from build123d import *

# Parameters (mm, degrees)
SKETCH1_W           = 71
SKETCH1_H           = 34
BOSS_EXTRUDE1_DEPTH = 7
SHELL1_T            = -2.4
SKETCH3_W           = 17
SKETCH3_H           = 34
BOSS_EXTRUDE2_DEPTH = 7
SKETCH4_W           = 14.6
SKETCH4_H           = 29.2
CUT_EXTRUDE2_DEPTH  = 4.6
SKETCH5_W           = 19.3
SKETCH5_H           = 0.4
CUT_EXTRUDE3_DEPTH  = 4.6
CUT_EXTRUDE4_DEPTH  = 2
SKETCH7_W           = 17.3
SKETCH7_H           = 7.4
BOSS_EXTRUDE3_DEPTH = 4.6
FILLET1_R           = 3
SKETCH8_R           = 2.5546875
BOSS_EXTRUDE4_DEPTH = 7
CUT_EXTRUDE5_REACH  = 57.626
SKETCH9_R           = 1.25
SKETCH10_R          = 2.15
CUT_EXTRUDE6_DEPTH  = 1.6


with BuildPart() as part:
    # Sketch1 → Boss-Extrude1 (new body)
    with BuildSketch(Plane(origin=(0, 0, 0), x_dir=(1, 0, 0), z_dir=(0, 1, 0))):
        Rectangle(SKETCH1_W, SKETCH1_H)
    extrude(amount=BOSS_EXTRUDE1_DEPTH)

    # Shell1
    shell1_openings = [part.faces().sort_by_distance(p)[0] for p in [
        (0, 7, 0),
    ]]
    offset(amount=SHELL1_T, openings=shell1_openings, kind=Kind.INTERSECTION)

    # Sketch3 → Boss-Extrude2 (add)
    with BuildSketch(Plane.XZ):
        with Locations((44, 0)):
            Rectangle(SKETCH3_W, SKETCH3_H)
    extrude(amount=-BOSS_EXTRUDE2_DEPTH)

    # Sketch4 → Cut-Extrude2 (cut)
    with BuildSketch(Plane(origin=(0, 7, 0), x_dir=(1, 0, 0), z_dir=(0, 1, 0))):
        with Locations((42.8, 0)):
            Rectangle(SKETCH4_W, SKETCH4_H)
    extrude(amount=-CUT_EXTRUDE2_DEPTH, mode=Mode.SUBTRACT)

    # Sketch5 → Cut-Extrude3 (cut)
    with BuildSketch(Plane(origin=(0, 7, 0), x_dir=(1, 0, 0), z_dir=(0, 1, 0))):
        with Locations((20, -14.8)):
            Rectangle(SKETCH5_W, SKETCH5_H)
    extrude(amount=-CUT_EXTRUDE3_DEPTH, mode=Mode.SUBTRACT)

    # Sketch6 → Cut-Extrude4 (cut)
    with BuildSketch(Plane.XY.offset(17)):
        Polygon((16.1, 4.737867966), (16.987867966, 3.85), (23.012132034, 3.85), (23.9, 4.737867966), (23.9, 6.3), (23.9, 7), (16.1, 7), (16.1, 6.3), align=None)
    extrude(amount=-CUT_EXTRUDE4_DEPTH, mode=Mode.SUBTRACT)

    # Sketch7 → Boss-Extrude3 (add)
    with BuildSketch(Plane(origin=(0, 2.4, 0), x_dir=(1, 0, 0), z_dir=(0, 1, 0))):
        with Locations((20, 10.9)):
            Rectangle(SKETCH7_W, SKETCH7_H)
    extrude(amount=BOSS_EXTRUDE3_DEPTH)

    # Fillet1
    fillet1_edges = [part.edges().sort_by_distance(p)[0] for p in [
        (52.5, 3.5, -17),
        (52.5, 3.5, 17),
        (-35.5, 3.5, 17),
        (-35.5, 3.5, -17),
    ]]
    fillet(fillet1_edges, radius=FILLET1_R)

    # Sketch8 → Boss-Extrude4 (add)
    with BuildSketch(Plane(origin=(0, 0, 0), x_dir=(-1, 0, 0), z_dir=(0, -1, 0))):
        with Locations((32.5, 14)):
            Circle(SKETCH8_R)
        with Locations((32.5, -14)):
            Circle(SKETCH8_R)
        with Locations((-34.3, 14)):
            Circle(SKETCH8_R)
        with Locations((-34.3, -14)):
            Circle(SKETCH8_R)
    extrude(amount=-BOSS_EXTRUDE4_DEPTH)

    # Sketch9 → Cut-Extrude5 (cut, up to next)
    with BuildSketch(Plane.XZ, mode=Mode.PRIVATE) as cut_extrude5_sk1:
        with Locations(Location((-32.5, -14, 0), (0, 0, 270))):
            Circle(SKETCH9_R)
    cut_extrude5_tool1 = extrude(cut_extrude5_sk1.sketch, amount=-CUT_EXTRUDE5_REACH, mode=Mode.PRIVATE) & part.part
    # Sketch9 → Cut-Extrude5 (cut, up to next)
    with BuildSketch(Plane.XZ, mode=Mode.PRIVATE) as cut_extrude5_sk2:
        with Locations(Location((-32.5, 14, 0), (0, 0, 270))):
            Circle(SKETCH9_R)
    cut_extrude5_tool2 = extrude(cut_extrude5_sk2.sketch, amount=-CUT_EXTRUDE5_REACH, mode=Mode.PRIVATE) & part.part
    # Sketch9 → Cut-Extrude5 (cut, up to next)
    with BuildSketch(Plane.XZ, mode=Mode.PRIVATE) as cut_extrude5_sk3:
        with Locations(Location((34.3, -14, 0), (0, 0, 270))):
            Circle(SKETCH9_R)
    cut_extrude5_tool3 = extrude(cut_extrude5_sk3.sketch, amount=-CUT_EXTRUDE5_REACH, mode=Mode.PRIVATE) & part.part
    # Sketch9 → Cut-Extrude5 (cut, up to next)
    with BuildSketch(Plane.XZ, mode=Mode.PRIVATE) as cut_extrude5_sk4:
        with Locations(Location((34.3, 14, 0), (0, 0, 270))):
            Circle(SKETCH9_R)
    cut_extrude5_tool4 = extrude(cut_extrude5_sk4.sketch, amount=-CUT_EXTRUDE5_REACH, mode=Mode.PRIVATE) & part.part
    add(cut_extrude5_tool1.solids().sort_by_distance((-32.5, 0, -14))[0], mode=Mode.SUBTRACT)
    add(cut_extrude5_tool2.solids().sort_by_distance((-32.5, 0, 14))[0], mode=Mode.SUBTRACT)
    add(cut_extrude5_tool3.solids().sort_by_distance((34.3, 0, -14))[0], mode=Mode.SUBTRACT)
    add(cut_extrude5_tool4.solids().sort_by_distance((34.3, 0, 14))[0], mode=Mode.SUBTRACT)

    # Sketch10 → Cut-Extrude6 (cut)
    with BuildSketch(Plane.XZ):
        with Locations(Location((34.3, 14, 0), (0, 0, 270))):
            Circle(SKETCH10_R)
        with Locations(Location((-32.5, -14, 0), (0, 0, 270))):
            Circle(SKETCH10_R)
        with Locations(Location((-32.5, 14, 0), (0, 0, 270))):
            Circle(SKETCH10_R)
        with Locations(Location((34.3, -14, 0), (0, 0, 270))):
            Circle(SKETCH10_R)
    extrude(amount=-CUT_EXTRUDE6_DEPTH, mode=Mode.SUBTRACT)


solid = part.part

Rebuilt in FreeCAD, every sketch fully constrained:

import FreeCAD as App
import Part
import Sketcher


def edges_at(feature, points):
    """Names of the edges that pass closest to the given points."""
    edges = feature.Shape.Edges
    near = lambda p: min(range(len(edges)), key=lambda i: edges[i].distToShape(Part.Vertex(*p))[0])
    return sorted({f"Edge{near(p) + 1}" for p in points})


def faces_at(feature, points):
    """Names of the faces that lie closest to the given points."""
    faces = feature.Shape.Faces
    near = lambda p: min(range(len(faces)), key=lambda i: faces[i].distToShape(Part.Vertex(*p))[0])
    return sorted({f"Face{near(p) + 1}" for p in points})

doc = App.newDocument("Part")
body = doc.addObject("PartDesign::Body", "Body")

# Sketch on XZ plane
sketch1 = doc.addObject("Sketcher::SketchObject", "Sketch")
body.addObject(sketch1)
sketch1.AttachmentSupport = (doc.XZ_Plane, [""])
sketch1.MapMode = "FlatFace"
sketch1.addGeometry(Part.LineSegment(App.Vector(-36, -17, 0), App.Vector(-36, 17, 0)), False)
sketch1.addGeometry(Part.LineSegment(App.Vector(-36, 17, 0), App.Vector(36, 17, 0)), False)
sketch1.addGeometry(Part.LineSegment(App.Vector(36, 17, 0), App.Vector(36, -17, 0)), False)
sketch1.addGeometry(Part.LineSegment(App.Vector(36, -17, 0), App.Vector(-36, -17, 0)), False)
sketch1.addConstraint(Sketcher.Constraint("Coincident", 0, 2, 1, 1))
sketch1.addConstraint(Sketcher.Constraint("Coincident", 1, 2, 2, 1))
sketch1.addConstraint(Sketcher.Constraint("Coincident", 2, 2, 3, 1))
sketch1.addConstraint(Sketcher.Constraint("Coincident", 3, 2, 0, 1))
sketch1.addConstraint(Sketcher.Constraint("Vertical", 0))
sketch1.addConstraint(Sketcher.Constraint("Horizontal", 1))
sketch1.addConstraint(Sketcher.Constraint("Vertical", 2))
sketch1.addConstraint(Sketcher.Constraint("Horizontal", 3))
sketch1.addConstraint(Sketcher.Constraint("Symmetric", 0, 2, 2, 2, -1, 1))
sketch1.addConstraint(Sketcher.Constraint("DistanceX", 1, 1, 1, 2, 71.0))
sketch1.addConstraint(Sketcher.Constraint("DistanceY", 0, 1, 0, 2, 34.0))
pad1 = doc.addObject("PartDesign::Pad", "Pad")
body.addObject(pad1)
pad1.Profile = sketch1
pad1.Length = 7
pad1.Reversed = True
doc.recompute()

thickness = doc.addObject("PartDesign::Thickness", "Thickness")
body.addObject(thickness)
thickness.Base = (pad1, faces_at(pad1, [(0, 7, 0)]))
thickness.Value = 2.4
thickness.Reversed = True
thickness.Join = "Intersection"

# Sketch on XZ plane
sketch2 = doc.addObject("Sketcher::SketchObject", "Sketch001")
body.addObject(sketch2)
sketch2.AttachmentSupport = (doc.XZ_Plane, [""])
sketch2.MapMode = "FlatFace"
sketch2.addGeometry(Part.LineSegment(App.Vector(36, 17, 0), App.Vector(36, -17, 0)), False)
sketch2.addGeometry(Part.LineSegment(App.Vector(36, -17, 0), App.Vector(52, -17, 0)), False)
sketch2.addGeometry(Part.LineSegment(App.Vector(52, -17, 0), App.Vector(52, 17, 0)), False)
sketch2.addGeometry(Part.LineSegment(App.Vector(52, 17, 0), App.Vector(36, 17, 0)), False)
sketch2.addConstraint(Sketcher.Constraint("Coincident", 0, 2, 1, 1))
sketch2.addConstraint(Sketcher.Constraint("Coincident", 1, 2, 2, 1))
sketch2.addConstraint(Sketcher.Constraint("Coincident", 2, 2, 3, 1))
sketch2.addConstraint(Sketcher.Constraint("Coincident", 3, 2, 0, 1))
sketch2.addConstraint(Sketcher.Constraint("Vertical", 0))
sketch2.addConstraint(Sketcher.Constraint("Horizontal", 1))
sketch2.addConstraint(Sketcher.Constraint("Vertical", 2))
sketch2.addConstraint(Sketcher.Constraint("Horizontal", 3))
sketch2.addConstraint(Sketcher.Constraint("DistanceX", 1, 1, 1, 2, 17.0))
sketch2.addConstraint(Sketcher.Constraint("DistanceY", 0, 2, 0, 1, 34.0))
sketch2.addConstraint(Sketcher.Constraint("DistanceY", 0, 2, -1, 1, 17.0))
sketch2.addConstraint(Sketcher.Constraint("DistanceX", -1, 1, 0, 2, 35.5))
pad2 = doc.addObject("PartDesign::Pad", "Pad001")
body.addObject(pad2)
pad2.Profile = sketch2
pad2.Length = 7
pad2.Reversed = True

# Sketch on XZ plane
sketch3 = doc.addObject("Sketcher::SketchObject", "Sketch002")
body.addObject(sketch3)
sketch3.AttachmentSupport = (doc.XZ_Plane, [""])
sketch3.MapMode = "FlatFace"
sketch3.AttachmentOffset = App.Placement(App.Vector(0, 0, -7), App.Rotation())
sketch3.addGeometry(Part.LineSegment(App.Vector(36, -15, 0), App.Vector(36, 15, 0)), False)
sketch3.addGeometry(Part.LineSegment(App.Vector(36, 15, 0), App.Vector(50, 15, 0)), False)
sketch3.addGeometry(Part.LineSegment(App.Vector(50, 15, 0), App.Vector(50, -15, 0)), False)
sketch3.addGeometry(Part.LineSegment(App.Vector(50, -15, 0), App.Vector(36, -15, 0)), False)
sketch3.addConstraint(Sketcher.Constraint("Coincident", 0, 2, 1, 1))
sketch3.addConstraint(Sketcher.Constraint("Coincident", 1, 2, 2, 1))
sketch3.addConstraint(Sketcher.Constraint("Coincident", 2, 2, 3, 1))
sketch3.addConstraint(Sketcher.Constraint("Coincident", 3, 2, 0, 1))
sketch3.addConstraint(Sketcher.Constraint("Vertical", 0))
sketch3.addConstraint(Sketcher.Constraint("Horizontal", 1))
sketch3.addConstraint(Sketcher.Constraint("Vertical", 2))
sketch3.addConstraint(Sketcher.Constraint("Horizontal", 3))
sketch3.addConstraint(Sketcher.Constraint("DistanceX", 1, 1, 1, 2, 14.6))
sketch3.addConstraint(Sketcher.Constraint("DistanceY", 0, 1, 0, 2, 29.2))
sketch3.addConstraint(Sketcher.Constraint("DistanceX", -1, 1, 0, 2, 35.5))
sketch3.addConstraint(Sketcher.Constraint("DistanceY", -1, 1, 0, 2, 14.6))
pocket1 = doc.addObject("PartDesign::Pocket", "Pocket")
body.addObject(pocket1)
pocket1.Profile = sketch3
pocket1.Length = 4.6
pocket1.Reversed = True

# Sketch on XZ plane
sketch4 = doc.addObject("Sketcher::SketchObject", "Sketch003")
body.addObject(sketch4)
sketch4.AttachmentSupport = (doc.XZ_Plane, [""])
sketch4.MapMode = "FlatFace"
sketch4.AttachmentOffset = App.Placement(App.Vector(0, 0, -7), App.Rotation())
sketch4.addGeometry(Part.LineSegment(App.Vector(10.35, 14.6, 0), App.Vector(10.35, 15, 0)), False)
sketch4.addGeometry(Part.LineSegment(App.Vector(10.35, 15, 0), App.Vector(29.65, 15, 0)), False)
sketch4.addGeometry(Part.LineSegment(App.Vector(29.65, 15, 0), App.Vector(29.65, 14.6, 0)), False)
sketch4.addGeometry(Part.LineSegment(App.Vector(29.65, 14.6, 0), App.Vector(10.35, 14.6, 0)), False)
sketch4.addConstraint(Sketcher.Constraint("Coincident", 0, 2, 1, 1))
sketch4.addConstraint(Sketcher.Constraint("Coincident", 1, 2, 2, 1))
sketch4.addConstraint(Sketcher.Constraint("Coincident", 2, 2, 3, 1))
sketch4.addConstraint(Sketcher.Constraint("Coincident", 3, 2, 0, 1))
sketch4.addConstraint(Sketcher.Constraint("Vertical", 0))
sketch4.addConstraint(Sketcher.Constraint("Horizontal", 1))
sketch4.addConstraint(Sketcher.Constraint("Vertical", 2))
sketch4.addConstraint(Sketcher.Constraint("Horizontal", 3))
sketch4.addConstraint(Sketcher.Constraint("DistanceX", 1, 1, 1, 2, 19.3))
sketch4.addConstraint(Sketcher.Constraint("DistanceY", 0, 1, 0, 2, 0.4))
sketch4.addConstraint(Sketcher.Constraint("DistanceY", -1, 1, 0, 2, 15.0))
sketch4.addConstraint(Sketcher.Constraint("DistanceX", -1, 1, 0, 2, 10.35))
pocket2 = doc.addObject("PartDesign::Pocket", "Pocket001")
body.addObject(pocket2)
pocket2.Profile = sketch4
pocket2.Length = 4.6
pocket2.Reversed = True

# Sketch on XY plane
sketch5 = doc.addObject("Sketcher::SketchObject", "Sketch004")
body.addObject(sketch5)
sketch5.AttachmentSupport = (doc.XY_Plane, [""])
sketch5.MapMode = "FlatFace"
sketch5.AttachmentOffset = App.Placement(App.Vector(0, 0, 17), App.Rotation())
sketch5.addGeometry(Part.LineSegment(App.Vector(16.1, 4.7, 0), App.Vector(17, 3.9, 0)), False)
sketch5.addGeometry(Part.LineSegment(App.Vector(17, 3.9, 0), App.Vector(23, 3.9, 0)), False)
sketch5.addGeometry(Part.LineSegment(App.Vector(23, 3.9, 0), App.Vector(23.9, 4.7, 0)), False)
sketch5.addGeometry(Part.LineSegment(App.Vector(23.9, 4.7, 0), App.Vector(23.9, 7, 0)), False)
sketch5.addGeometry(Part.LineSegment(App.Vector(23.9, 7, 0), App.Vector(16.1, 7, 0)), False)
sketch5.addGeometry(Part.LineSegment(App.Vector(16.1, 7, 0), App.Vector(16.1, 4.7, 0)), False)
sketch5.addConstraint(Sketcher.Constraint("Coincident", 0, 2, 1, 1))
sketch5.addConstraint(Sketcher.Constraint("Coincident", 1, 2, 2, 1))
sketch5.addConstraint(Sketcher.Constraint("Coincident", 2, 2, 3, 1))
sketch5.addConstraint(Sketcher.Constraint("Coincident", 3, 2, 4, 1))
sketch5.addConstraint(Sketcher.Constraint("Coincident", 4, 2, 5, 1))
sketch5.addConstraint(Sketcher.Constraint("Coincident", 5, 2, 0, 1))
sketch5.addConstraint(Sketcher.Constraint("Horizontal", 1))
sketch5.addConstraint(Sketcher.Constraint("Vertical", 3))
sketch5.addConstraint(Sketcher.Constraint("Horizontal", 4))
sketch5.addConstraint(Sketcher.Constraint("Vertical", 5))
sketch5.addConstraint(Sketcher.Constraint("Perpendicular", 0, 2))
sketch5.addConstraint(Sketcher.Constraint("Horizontal", 2, 2, 5, 2))
sketch5.addConstraint(Sketcher.Constraint("Equal", 0, 2))
sketch5.addConstraint(Sketcher.Constraint("DistanceX", 4, 2, 4, 1, 7.8))
sketch5.addConstraint(Sketcher.Constraint("DistanceY", -1, 1, 3, 2, 7.0))
sketch5.addConstraint(Sketcher.Constraint("DistanceX", -1, 1, 2, 2, 23.9))
sketch5.addConstraint(Sketcher.Constraint("DistanceY", -1, 1, 0, 2, 3.85))
sketch5.addConstraint(Sketcher.Constraint("DistanceX", 1, 1, 1, 2, 6.024264))
pocket3 = doc.addObject("PartDesign::Pocket", "Pocket002")
body.addObject(pocket3)
pocket3.Profile = sketch5
pocket3.Length = 2

# Sketch on XZ plane
sketch6 = doc.addObject("Sketcher::SketchObject", "Sketch005")
body.addObject(sketch6)
sketch6.AttachmentSupport = (doc.XZ_Plane, [""])
sketch6.MapMode = "FlatFace"
sketch6.AttachmentOffset = App.Placement(App.Vector(0, 0, -2.4), App.Rotation())
sketch6.addGeometry(Part.LineSegment(App.Vector(11, -15, 0), App.Vector(11, -7, 0)), False)
sketch6.addGeometry(Part.LineSegment(App.Vector(11, -7, 0), App.Vector(29, -7, 0)), False)
sketch6.addGeometry(Part.LineSegment(App.Vector(29, -7, 0), App.Vector(29, -15, 0)), False)
sketch6.addGeometry(Part.LineSegment(App.Vector(29, -15, 0), App.Vector(11, -15, 0)), False)
sketch6.addConstraint(Sketcher.Constraint("Coincident", 0, 2, 1, 1))
sketch6.addConstraint(Sketcher.Constraint("Coincident", 1, 2, 2, 1))
sketch6.addConstraint(Sketcher.Constraint("Coincident", 2, 2, 3, 1))
sketch6.addConstraint(Sketcher.Constraint("Coincident", 3, 2, 0, 1))
sketch6.addConstraint(Sketcher.Constraint("Vertical", 0))
sketch6.addConstraint(Sketcher.Constraint("Horizontal", 1))
sketch6.addConstraint(Sketcher.Constraint("Vertical", 2))
sketch6.addConstraint(Sketcher.Constraint("Horizontal", 3))
sketch6.addConstraint(Sketcher.Constraint("DistanceX", 1, 1, 1, 2, 17.3))
sketch6.addConstraint(Sketcher.Constraint("DistanceY", 0, 1, 0, 2, 7.4))
sketch6.addConstraint(Sketcher.Constraint("DistanceY", 0, 2, -1, 1, 7.2))
sketch6.addConstraint(Sketcher.Constraint("DistanceX", -1, 1, 0, 2, 11.35))
pad3 = doc.addObject("PartDesign::Pad", "Pad002")
body.addObject(pad3)
pad3.Profile = sketch6
pad3.Length = 4.6
pad3.Reversed = True
doc.recompute()

fillet = doc.addObject("PartDesign::Fillet", "Fillet")
body.addObject(fillet)
fillet.Base = (pad3, edges_at(pad3, [
    (52.5, 3.5, -17),
    (52.5, 3.5, 17),
    (-35.5, 3.5, 17),
    (-35.5, 3.5, -17),
]))
fillet.Radius = 3

# Sketch on XZ plane
sketch7 = doc.addObject("Sketcher::SketchObject", "Sketch006")
body.addObject(sketch7)
sketch7.AttachmentSupport = (doc.XZ_Plane, [""])
sketch7.MapMode = "FlatFace"
sketch7.addGeometry(Part.Circle(App.Vector(-32.5, -14, 0), App.Vector(0, 0, 1), 2.6), False)
sketch7.addGeometry(Part.Circle(App.Vector(-32.5, 14, 0), App.Vector(0, 0, 1), 2.6), False)
sketch7.addGeometry(Part.Circle(App.Vector(34.3, -14, 0), App.Vector(0, 0, 1), 2.6), False)
sketch7.addGeometry(Part.Circle(App.Vector(34.3, 14, 0), App.Vector(0, 0, 1), 2.6), False)
sketch7.addConstraint(Sketcher.Constraint("Equal", 0, 1))
sketch7.addConstraint(Sketcher.Constraint("Equal", 1, 2))
sketch7.addConstraint(Sketcher.Constraint("Equal", 2, 3))
sketch7.addConstraint(Sketcher.Constraint("Symmetric", 0, 3, 1, 3, -1))
sketch7.addConstraint(Sketcher.Constraint("Symmetric", 2, 3, 3, 3, -1))
sketch7.addConstraint(Sketcher.Constraint("Horizontal", 0, 3, 2, 3))
sketch7.addConstraint(Sketcher.Constraint("DistanceY", 0, 3, -1, 1, 14.0))
sketch7.addConstraint(Sketcher.Constraint("DistanceX", 0, 3, -1, 1, 32.5))
sketch7.addConstraint(Sketcher.Constraint("DistanceX", -1, 1, 2, 3, 34.3))
sketch7.addConstraint(Sketcher.Constraint("Diameter", 0, 5.109375))
pad4 = doc.addObject("PartDesign::Pad", "Pad003")
body.addObject(pad4)
pad4.Profile = sketch7
pad4.Length = 7
pad4.Reversed = True

# Sketch on XZ plane
sketch8 = doc.addObject("Sketcher::SketchObject", "Sketch007")
body.addObject(sketch8)
sketch8.AttachmentSupport = (doc.XZ_Plane, [""])
sketch8.MapMode = "FlatFace"
sketch8.addGeometry(Part.Circle(App.Vector(-32.5, -14, 0), App.Vector(0, 0, 1), 1.2), False)
sketch8.addConstraint(Sketcher.Constraint("Diameter", 0, 2.5))
sketch8.addConstraint(Sketcher.Constraint("DistanceY", 0, 3, -1, 1, 14.0))
sketch8.addConstraint(Sketcher.Constraint("DistanceX", 0, 3, -1, 1, 32.5))
pocket4 = doc.addObject("PartDesign::Pocket", "Pocket003")
body.addObject(pocket4)
pocket4.Profile = sketch8
pocket4.Type = "UpToFirst"

# Sketch on XZ plane
sketch9 = doc.addObject("Sketcher::SketchObject", "Sketch008")
body.addObject(sketch9)
sketch9.AttachmentSupport = (doc.XZ_Plane, [""])
sketch9.MapMode = "FlatFace"
sketch9.addGeometry(Part.Circle(App.Vector(-32.5, 14, 0), App.Vector(0, 0, 1), 1.2), False)
sketch9.addConstraint(Sketcher.Constraint("Diameter", 0, 2.5))
sketch9.addConstraint(Sketcher.Constraint("DistanceY", -1, 1, 0, 3, 14.0))
sketch9.addConstraint(Sketcher.Constraint("DistanceX", 0, 3, -1, 1, 32.5))
pocket5 = doc.addObject("PartDesign::Pocket", "Pocket004")
body.addObject(pocket5)
pocket5.Profile = sketch9
pocket5.Type = "UpToFirst"

# Sketch on XZ plane
sketch10 = doc.addObject("Sketcher::SketchObject", "Sketch009")
body.addObject(sketch10)
sketch10.AttachmentSupport = (doc.XZ_Plane, [""])
sketch10.MapMode = "FlatFace"
sketch10.addGeometry(Part.Circle(App.Vector(34.3, -14, 0), App.Vector(0, 0, 1), 1.2), False)
sketch10.addConstraint(Sketcher.Constraint("Diameter", 0, 2.5))
sketch10.addConstraint(Sketcher.Constraint("DistanceY", 0, 3, -1, 1, 14.0))
sketch10.addConstraint(Sketcher.Constraint("DistanceX", -1, 1, 0, 3, 34.3))
pocket6 = doc.addObject("PartDesign::Pocket", "Pocket005")
body.addObject(pocket6)
pocket6.Profile = sketch10
pocket6.Type = "UpToFirst"

# Sketch on XZ plane
sketch11 = doc.addObject("Sketcher::SketchObject", "Sketch010")
body.addObject(sketch11)
sketch11.AttachmentSupport = (doc.XZ_Plane, [""])
sketch11.MapMode = "FlatFace"
sketch11.addGeometry(Part.Circle(App.Vector(34.3, 14, 0), App.Vector(0, 0, 1), 1.2), False)
sketch11.addConstraint(Sketcher.Constraint("Diameter", 0, 2.5))
sketch11.addConstraint(Sketcher.Constraint("DistanceY", -1, 1, 0, 3, 14.0))
sketch11.addConstraint(Sketcher.Constraint("DistanceX", -1, 1, 0, 3, 34.3))
pocket7 = doc.addObject("PartDesign::Pocket", "Pocket006")
body.addObject(pocket7)
pocket7.Profile = sketch11
pocket7.Type = "UpToFirst"

# Sketch on XZ plane
sketch12 = doc.addObject("Sketcher::SketchObject", "Sketch011")
body.addObject(sketch12)
sketch12.AttachmentSupport = (doc.XZ_Plane, [""])
sketch12.MapMode = "FlatFace"
sketch12.addGeometry(Part.Circle(App.Vector(34.3, 14, 0), App.Vector(0, 0, 1), 2.1), False)
sketch12.addGeometry(Part.Circle(App.Vector(-32.5, -14, 0), App.Vector(0, 0, 1), 2.1), False)
sketch12.addGeometry(Part.Circle(App.Vector(-32.5, 14, 0), App.Vector(0, 0, 1), 2.1), False)
sketch12.addGeometry(Part.Circle(App.Vector(34.3, -14, 0), App.Vector(0, 0, 1), 2.1), False)
sketch12.addConstraint(Sketcher.Constraint("Equal", 0, 1))
sketch12.addConstraint(Sketcher.Constraint("Equal", 1, 2))
sketch12.addConstraint(Sketcher.Constraint("Equal", 2, 3))
sketch12.addConstraint(Sketcher.Constraint("Symmetric", 1, 3, 2, 3, -1))
sketch12.addConstraint(Sketcher.Constraint("Symmetric", 0, 3, 3, 3, -1))
sketch12.addConstraint(Sketcher.Constraint("Horizontal", 0, 3, 2, 3))
sketch12.addConstraint(Sketcher.Constraint("Diameter", 0, 4.3))
sketch12.addConstraint(Sketcher.Constraint("DistanceY", -1, 1, 0, 3, 14.0))
sketch12.addConstraint(Sketcher.Constraint("DistanceX", -1, 1, 0, 3, 34.3))
sketch12.addConstraint(Sketcher.Constraint("DistanceX", 1, 3, -1, 1, 32.5))
pocket8 = doc.addObject("PartDesign::Pocket", "Pocket007")
body.addObject(pocket8)
pocket8.Profile = sketch12
pocket8.Length = 1.6

doc.recompute()
